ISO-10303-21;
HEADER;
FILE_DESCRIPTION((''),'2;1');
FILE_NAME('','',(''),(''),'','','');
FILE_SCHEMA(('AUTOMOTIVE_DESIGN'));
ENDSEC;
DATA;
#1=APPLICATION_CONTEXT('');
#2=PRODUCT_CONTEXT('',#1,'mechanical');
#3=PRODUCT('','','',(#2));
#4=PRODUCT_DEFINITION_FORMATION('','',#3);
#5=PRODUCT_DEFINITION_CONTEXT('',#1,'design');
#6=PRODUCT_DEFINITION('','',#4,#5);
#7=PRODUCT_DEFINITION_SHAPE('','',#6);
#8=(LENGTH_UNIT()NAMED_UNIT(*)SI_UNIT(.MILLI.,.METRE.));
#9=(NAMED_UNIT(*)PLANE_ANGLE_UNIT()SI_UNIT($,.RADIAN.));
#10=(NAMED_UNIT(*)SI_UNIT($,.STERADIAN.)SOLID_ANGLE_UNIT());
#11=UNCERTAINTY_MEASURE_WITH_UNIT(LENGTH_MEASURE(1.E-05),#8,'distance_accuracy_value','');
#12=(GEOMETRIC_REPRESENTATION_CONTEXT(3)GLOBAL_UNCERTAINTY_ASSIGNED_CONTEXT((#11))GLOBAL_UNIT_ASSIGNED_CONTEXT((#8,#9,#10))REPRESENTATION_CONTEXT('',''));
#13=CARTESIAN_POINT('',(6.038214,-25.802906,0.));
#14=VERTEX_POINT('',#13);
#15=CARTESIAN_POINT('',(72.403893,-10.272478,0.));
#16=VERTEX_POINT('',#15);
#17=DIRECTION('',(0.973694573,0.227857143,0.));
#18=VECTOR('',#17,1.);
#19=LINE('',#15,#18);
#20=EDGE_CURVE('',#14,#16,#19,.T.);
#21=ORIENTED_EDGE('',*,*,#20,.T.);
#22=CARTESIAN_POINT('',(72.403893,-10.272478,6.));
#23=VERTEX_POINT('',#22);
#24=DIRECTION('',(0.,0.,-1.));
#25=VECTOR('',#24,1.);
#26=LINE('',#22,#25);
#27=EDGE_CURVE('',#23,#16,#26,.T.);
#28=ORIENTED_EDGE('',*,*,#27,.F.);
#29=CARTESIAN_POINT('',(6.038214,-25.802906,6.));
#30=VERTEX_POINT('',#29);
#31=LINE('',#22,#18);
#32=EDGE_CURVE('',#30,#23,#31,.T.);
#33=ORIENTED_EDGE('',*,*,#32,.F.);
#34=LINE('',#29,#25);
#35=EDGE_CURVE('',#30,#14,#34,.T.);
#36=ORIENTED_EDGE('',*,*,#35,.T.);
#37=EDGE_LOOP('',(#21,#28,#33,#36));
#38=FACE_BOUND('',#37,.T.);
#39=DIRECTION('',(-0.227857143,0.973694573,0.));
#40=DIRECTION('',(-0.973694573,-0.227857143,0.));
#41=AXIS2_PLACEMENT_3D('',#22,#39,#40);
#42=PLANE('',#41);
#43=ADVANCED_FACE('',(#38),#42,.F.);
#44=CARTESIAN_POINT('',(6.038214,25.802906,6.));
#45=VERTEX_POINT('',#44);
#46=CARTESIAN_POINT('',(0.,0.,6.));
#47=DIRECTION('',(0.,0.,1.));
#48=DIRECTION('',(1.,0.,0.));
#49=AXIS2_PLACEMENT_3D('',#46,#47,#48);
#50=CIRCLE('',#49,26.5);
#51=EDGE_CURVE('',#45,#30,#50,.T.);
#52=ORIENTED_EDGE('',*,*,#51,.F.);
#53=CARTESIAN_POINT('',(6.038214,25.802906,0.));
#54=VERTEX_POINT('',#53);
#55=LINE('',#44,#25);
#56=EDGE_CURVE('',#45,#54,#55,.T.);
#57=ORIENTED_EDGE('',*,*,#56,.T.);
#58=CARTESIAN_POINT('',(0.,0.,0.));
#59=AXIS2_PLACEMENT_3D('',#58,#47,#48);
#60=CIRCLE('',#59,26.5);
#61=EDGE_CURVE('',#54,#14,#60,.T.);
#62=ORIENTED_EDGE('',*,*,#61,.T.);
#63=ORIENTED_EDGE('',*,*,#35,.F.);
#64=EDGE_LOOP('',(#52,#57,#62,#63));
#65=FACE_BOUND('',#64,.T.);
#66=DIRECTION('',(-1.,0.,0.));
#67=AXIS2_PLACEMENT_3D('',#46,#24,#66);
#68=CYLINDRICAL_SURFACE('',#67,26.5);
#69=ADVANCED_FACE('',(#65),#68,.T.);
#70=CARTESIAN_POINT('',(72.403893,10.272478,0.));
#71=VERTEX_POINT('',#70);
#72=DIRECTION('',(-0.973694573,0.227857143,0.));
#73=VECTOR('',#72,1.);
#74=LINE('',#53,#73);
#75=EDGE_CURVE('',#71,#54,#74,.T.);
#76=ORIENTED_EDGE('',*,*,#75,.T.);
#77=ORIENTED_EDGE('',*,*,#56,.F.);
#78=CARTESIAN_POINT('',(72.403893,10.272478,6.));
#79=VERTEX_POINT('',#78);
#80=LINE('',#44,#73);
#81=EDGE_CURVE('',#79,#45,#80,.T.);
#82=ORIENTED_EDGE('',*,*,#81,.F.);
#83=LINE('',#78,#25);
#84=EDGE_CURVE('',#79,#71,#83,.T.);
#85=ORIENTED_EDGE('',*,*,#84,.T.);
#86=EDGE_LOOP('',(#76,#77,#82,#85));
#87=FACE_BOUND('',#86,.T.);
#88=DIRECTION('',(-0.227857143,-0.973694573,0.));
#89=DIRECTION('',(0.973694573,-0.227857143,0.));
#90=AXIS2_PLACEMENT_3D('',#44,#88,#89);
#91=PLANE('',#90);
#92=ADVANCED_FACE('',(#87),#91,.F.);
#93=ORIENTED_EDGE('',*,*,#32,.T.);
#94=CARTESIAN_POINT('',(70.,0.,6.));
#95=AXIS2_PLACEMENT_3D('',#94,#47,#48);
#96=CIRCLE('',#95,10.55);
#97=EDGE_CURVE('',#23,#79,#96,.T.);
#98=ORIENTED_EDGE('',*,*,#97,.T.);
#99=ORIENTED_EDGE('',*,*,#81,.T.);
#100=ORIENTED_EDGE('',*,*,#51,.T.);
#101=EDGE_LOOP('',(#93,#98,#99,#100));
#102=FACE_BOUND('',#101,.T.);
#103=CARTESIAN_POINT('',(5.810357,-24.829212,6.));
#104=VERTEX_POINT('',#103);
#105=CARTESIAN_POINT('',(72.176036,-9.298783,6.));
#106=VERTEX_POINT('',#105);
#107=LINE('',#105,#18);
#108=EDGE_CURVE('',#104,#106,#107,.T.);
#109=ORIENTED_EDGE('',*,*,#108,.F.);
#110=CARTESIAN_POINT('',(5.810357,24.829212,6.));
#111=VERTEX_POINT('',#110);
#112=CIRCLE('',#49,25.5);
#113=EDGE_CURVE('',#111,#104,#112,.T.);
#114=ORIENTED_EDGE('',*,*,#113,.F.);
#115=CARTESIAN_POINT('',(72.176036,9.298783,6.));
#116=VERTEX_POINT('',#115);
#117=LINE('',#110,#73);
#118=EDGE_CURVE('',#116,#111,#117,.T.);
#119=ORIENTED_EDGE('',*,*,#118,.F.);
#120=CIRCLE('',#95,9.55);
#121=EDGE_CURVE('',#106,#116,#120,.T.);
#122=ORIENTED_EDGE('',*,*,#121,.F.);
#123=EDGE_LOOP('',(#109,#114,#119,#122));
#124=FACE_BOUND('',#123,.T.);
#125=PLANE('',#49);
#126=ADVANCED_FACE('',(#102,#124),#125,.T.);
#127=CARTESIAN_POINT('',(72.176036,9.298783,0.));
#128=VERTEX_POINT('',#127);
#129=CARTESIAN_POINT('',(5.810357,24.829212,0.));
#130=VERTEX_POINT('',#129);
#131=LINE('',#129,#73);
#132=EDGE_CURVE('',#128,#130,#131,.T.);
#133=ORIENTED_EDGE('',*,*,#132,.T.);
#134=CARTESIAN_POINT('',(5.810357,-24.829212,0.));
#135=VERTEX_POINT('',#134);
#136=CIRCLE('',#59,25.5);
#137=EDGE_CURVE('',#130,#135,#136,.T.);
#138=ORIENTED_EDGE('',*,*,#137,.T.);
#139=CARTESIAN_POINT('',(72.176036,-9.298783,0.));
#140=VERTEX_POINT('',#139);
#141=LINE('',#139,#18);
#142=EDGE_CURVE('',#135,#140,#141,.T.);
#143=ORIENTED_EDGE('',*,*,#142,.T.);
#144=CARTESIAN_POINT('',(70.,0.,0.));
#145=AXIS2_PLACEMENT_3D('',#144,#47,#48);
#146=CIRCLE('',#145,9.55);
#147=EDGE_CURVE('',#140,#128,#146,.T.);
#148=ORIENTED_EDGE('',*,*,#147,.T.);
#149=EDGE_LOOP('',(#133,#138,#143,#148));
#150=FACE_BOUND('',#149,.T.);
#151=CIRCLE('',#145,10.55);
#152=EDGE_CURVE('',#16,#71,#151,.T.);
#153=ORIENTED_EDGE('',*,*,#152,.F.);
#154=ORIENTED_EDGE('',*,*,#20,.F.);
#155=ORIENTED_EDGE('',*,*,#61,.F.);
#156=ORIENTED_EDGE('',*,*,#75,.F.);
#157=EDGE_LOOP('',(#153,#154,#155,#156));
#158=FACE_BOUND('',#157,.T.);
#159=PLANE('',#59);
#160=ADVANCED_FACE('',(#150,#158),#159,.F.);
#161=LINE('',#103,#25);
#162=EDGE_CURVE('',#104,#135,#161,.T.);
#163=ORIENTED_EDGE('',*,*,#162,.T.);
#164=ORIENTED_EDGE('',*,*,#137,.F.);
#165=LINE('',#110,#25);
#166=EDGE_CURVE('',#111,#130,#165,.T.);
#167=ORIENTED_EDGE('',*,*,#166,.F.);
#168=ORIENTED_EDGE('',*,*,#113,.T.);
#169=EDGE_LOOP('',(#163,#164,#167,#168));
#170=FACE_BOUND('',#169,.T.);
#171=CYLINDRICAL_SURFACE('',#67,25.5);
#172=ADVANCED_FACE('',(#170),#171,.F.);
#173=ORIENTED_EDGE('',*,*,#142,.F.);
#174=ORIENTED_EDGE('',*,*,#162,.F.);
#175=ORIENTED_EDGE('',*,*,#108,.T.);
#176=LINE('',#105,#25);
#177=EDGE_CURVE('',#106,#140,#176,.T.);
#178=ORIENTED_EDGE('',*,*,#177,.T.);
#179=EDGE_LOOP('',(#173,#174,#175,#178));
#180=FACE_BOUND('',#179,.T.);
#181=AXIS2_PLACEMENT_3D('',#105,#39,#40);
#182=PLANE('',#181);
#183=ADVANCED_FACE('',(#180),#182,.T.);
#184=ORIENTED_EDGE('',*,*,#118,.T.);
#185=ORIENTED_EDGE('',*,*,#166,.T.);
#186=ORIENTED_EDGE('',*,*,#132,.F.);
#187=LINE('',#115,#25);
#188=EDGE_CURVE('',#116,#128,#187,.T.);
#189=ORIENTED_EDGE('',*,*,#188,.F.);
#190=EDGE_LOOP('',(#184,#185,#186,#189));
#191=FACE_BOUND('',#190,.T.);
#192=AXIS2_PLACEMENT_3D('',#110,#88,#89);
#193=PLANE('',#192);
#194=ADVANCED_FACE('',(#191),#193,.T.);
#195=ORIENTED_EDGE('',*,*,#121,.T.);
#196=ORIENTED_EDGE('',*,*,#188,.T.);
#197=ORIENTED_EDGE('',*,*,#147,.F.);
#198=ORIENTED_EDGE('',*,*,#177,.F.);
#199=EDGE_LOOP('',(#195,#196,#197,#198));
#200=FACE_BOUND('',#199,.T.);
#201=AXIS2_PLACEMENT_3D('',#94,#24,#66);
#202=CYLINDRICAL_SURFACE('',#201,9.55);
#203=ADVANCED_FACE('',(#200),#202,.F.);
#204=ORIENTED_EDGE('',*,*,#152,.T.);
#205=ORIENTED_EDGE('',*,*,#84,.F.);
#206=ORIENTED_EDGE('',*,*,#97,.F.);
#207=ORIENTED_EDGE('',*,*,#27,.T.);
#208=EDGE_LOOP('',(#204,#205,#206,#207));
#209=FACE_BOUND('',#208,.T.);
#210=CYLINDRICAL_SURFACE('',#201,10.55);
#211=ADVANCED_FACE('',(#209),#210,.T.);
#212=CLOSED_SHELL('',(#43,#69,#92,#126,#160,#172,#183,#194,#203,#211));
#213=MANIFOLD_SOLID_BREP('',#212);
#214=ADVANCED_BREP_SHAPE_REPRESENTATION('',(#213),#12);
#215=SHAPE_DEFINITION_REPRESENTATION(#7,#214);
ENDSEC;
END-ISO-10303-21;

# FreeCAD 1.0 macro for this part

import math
import FreeCAD as App
import Part
import Sketcher
from FreeCAD import Vector
Q = App.Units.Quantity

doc = App.newDocument("Part")
body = doc.addObject("PartDesign::Body", "Body")

# Sketch on XY plane
sketch1 = body.newObject("Sketcher::SketchObject", "Sketch")
sketch1.AttachmentSupport = (doc.getObject("XY_Plane"), [""])
sketch1.MapMode = "FlatFace"
sketch1.addGeometry([
    Part.LineSegment(Vector(72, 10, 0), Vector(6, 26, 0)),  # 0
    Part.ArcOfCircle(Part.Circle(Vector(0, 0, 0), Vector(0, 0, 1), 26), math.radians(77), math.radians(283)),  # 1
    Part.LineSegment(Vector(6, -26, 0), Vector(72, -10, 0)),  # 2
    Part.ArcOfCircle(Part.Circle(Vector(70, 0, 0), Vector(0, 0, 1), 11), math.radians(-77), math.radians(77)),  # 3
    Part.LineSegment(Vector(6, 25, 0), Vector(72, 9, 0)),  # 4
    Part.ArcOfCircle(Part.Circle(Vector(70, 0, 0), Vector(0, 0, 1), 10), math.radians(-77), math.radians(77)),  # 5
    Part.LineSegment(Vector(72, -9, 0), Vector(6, -25, 0)),  # 6
    Part.ArcOfCircle(Part.Circle(Vector(0, 0, 0), Vector(0, 0, 1), 26), math.radians(77), math.radians(283)),  # 7
], False)
sketch1.addConstraint([
    Sketcher.Constraint("Tangent", 0, 2, 1, 1),
    Sketcher.Constraint("Tangent", 1, 2, 2, 1),
    Sketcher.Constraint("Tangent", 2, 2, 3, 1),
    Sketcher.Constraint("Tangent", 3, 2, 0, 1),
    Sketcher.Constraint("Tangent", 4, 2, 5, 2),
    Sketcher.Constraint("Tangent", 5, 1, 6, 1),
    Sketcher.Constraint("Tangent", 6, 2, 7, 2),
    Sketcher.Constraint("Tangent", 7, 1, 4, 1),
    Sketcher.Constraint("Coincident", 1, 3, -1, 1),
    Sketcher.Constraint("Coincident", 7, 3, -1, 1),
    Sketcher.Constraint("Coincident", 5, 3, 3, 3),
    Sketcher.Constraint("PointOnObject", 3, 3, -1),
    Sketcher.Constraint("Parallel", 0, 4),
    Sketcher.Constraint("Radius", 1, Q("26.5 mm")),
    Sketcher.Constraint("Radius", 7, Q("25.5 mm")),
    Sketcher.Constraint("Radius", 3, Q("10.55 mm")),
    Sketcher.Constraint("DistanceX", -1, 1, 3, 3, Q("70 mm")),
])
pad1 = body.newObject("PartDesign::Pad", "Pad")
pad1.Profile = sketch1
pad1.Length = 6

doc.recompute()
